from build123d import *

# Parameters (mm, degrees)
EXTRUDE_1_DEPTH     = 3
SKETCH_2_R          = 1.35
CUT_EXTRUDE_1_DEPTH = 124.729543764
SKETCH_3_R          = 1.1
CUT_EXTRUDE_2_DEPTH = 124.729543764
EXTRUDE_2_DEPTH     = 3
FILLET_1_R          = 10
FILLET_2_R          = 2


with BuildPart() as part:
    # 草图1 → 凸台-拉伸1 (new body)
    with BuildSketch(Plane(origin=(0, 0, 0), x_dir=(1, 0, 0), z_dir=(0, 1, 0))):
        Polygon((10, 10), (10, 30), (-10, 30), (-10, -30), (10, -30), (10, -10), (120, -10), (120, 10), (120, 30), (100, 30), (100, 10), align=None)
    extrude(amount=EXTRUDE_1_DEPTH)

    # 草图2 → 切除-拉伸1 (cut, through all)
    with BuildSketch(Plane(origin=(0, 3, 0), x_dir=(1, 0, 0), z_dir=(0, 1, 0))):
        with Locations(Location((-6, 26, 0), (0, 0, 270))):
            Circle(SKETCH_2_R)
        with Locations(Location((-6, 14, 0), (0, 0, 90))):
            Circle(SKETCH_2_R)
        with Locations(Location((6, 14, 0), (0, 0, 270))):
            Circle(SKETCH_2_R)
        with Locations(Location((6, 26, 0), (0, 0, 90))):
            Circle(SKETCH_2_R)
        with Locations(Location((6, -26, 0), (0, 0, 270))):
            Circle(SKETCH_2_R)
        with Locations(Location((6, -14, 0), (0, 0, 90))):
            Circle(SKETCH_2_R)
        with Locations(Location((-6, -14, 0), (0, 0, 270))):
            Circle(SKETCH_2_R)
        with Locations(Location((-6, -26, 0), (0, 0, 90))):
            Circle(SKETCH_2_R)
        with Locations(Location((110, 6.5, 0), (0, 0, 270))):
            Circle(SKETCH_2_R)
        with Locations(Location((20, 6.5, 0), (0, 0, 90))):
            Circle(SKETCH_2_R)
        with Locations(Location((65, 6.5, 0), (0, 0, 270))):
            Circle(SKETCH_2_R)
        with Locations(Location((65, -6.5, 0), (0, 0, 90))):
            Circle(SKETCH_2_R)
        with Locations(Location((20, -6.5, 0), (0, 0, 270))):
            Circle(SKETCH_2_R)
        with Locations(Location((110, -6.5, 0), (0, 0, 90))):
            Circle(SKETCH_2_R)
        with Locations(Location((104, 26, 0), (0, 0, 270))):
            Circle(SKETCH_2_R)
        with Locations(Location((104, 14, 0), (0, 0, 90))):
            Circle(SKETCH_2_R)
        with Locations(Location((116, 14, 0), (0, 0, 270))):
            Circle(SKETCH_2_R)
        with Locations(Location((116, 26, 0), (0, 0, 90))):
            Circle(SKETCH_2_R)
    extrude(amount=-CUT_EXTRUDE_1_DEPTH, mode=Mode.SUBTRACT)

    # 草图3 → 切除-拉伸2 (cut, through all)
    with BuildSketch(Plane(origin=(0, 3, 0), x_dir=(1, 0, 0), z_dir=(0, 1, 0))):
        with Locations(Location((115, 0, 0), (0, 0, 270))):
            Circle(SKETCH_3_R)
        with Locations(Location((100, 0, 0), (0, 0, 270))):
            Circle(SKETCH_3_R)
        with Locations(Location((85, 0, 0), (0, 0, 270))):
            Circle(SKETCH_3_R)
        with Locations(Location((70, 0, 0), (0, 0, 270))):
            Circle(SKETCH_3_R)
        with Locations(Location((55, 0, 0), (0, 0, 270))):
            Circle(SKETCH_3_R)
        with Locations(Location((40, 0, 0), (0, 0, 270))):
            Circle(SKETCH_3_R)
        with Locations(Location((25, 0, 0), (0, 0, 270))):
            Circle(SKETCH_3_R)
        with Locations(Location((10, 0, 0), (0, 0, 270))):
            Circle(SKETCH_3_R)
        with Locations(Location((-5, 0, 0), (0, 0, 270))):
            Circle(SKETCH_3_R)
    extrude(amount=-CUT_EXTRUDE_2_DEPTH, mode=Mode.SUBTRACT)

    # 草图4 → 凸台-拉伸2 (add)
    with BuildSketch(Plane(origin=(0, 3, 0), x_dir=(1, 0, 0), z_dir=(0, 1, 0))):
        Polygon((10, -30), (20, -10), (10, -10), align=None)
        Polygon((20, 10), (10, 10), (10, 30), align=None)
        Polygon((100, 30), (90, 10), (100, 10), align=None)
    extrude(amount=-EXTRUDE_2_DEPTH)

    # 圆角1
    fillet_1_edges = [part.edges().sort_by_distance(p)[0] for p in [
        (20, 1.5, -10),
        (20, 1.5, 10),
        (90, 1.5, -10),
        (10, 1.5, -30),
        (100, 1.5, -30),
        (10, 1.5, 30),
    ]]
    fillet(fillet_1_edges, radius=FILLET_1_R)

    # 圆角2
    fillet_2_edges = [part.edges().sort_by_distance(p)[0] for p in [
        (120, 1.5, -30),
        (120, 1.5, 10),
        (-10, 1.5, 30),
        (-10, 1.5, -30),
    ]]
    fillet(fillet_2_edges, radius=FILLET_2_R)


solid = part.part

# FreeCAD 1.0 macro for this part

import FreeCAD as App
import Part
import Sketcher


def edges_at(feature, points):
    """Names of the edges that pass closest to the given points."""
    edges = feature.Shape.Edges
    near = lambda p: min(range(len(edges)), key=lambda i: edges[i].distToShape(Part.Vertex(*p))[0])
    return sorted({f"Edge{near(p) + 1}" for p in points})


def add_polygon(sketch, points):
    """Adds a closed chain of lines whose ends are joined by coincident constraints."""
    first, n = sketch.GeometryCount, len(points)
    for a, b in zip(points, points[1:] + points[:1]):
        sketch.addGeometry(Part.LineSegment(App.Vector(*a, 0), App.Vector(*b, 0)), False)
    for i in range(n):
        sketch.addConstraint(Sketcher.Constraint("Coincident", first + i, 2, first + (i + 1) % n, 1))

doc = App.newDocument("Part")
params = doc.addObject("Spreadsheet::Sheet", "Params")
for row, (alias, value) in enumerate([
    ("sketch1_width", "20 mm"),
    ("sketch1_width2", "110 mm"),
    ("sketch1_height", "60 mm"),
    ("pad1_length", "3 mm"),
    ("sketch2_diameter", "2.7 mm"),
    ("sketch3_diameter", "2.2 mm"),
    ("sketch4_width", "10 mm"),
    ("sketch4_height", "20 mm"),
    ("pad2_length", "3 mm"),
    ("fillet_radius", "10 mm"),
    ("fillet2_radius", "2 mm"),
], start=1):
    params.set(f"A{row}", alias)
    params.set(f"B{row}", "=" + value)
    params.setAlias(f"B{row}", alias)

body = doc.addObject("PartDesign::Body", "Body")

# Sketch on XZ plane
sketch1 = body.newObject("Sketcher::SketchObject", "Sketch")
sketch1.AttachmentSupport = (doc.getObject("XZ_Plane"), [""])
sketch1.MapMode = "FlatFace"
add_polygon(sketch1, [(10, -10), (10, -30), (-10, -30), (-10, 30), (10, 30), (10, 10), (120, 10), (120, -30), (100, -30), (100, -10)])  # lines 0-9
sketch1.addConstraint(Sketcher.Constraint("Vertical", 0))
sketch1.addConstraint(Sketcher.Constraint("Horizontal", 1))
sketch1.addConstraint(Sketcher.Constraint("Vertical", 2))
sketch1.addConstraint(Sketcher.Constraint("Horizontal", 3))
sketch1.addConstraint(Sketcher.Constraint("Vertical", 4))
sketch1.addConstraint(Sketcher.Constraint("Horizontal", 5))
sketch1.addConstraint(Sketcher.Constraint("Vertical", 6))
sketch1.addConstraint(Sketcher.Constraint("Horizontal", 7))
sketch1.addConstraint(Sketcher.Constraint("Vertical", 8))
sketch1.addConstraint(Sketcher.Constraint("Horizontal", 9))
sketch1.addConstraint(Sketcher.Constraint("Symmetric", 0, 2, 2, 2, -1, 1))
sketch1.addConstraint(Sketcher.Constraint("Symmetric", 4, 2, 9, 2, -1))
sketch1.addConstraint(Sketcher.Constraint("Horizontal", 1, 2, 6, 2))
sketch1.addConstraint(Sketcher.Constraint("Equal", 3, 7))
sketch1.addConstraint(Sketcher.Constraint("Equal", 7, 0))
sketch1.addConstraint(Sketcher.Constraint("DistanceX", 1, 2, 1, 1, 20.0))
sketch1.addConstraint(Sketcher.Constraint("DistanceX", 5, 1, 5, 2, 110.0))
sketch1.addConstraint(Sketcher.Constraint("DistanceY", 2, 1, 2, 2, 60.0))
sketch1.setExpression("Constraints[25]", "Params.sketch1_width")
sketch1.setExpression("Constraints[26]", "Params.sketch1_width2")
sketch1.setExpression("Constraints[27]", "Params.sketch1_height")
pad1 = body.newObject("PartDesign::Pad", "Pad")
pad1.Profile = sketch1
pad1.setExpression("Length", "Params.pad1_length")
pad1.Reversed = True

# Sketch on XZ plane
sketch2 = body.newObject("Sketcher::SketchObject", "Sketch001")
sketch2.AttachmentSupport = (doc.getObject("XZ_Plane"), [""])
sketch2.MapMode = "FlatFace"
sketch2.AttachmentOffset = App.Placement(App.Vector(0, 0, -3), App.Rotation())
sketch2.addGeometry(Part.Circle(App.Vector(-6, -26, 0), App.Vector(0, 0, 1), 1.35), False)
sketch2.addGeometry(Part.Circle(App.Vector(-6, -14, 0), App.Vector(0, 0, 1), 1.35), False)
sketch2.addGeometry(Part.Circle(App.Vector(6, -14, 0), App.Vector(0, 0, 1), 1.35), False)
sketch2.addGeometry(Part.Circle(App.Vector(6, -26, 0), App.Vector(0, 0, 1), 1.35), False)
sketch2.addGeometry(Part.Circle(App.Vector(6, 26, 0), App.Vector(0, 0, 1), 1.35), False)
sketch2.addGeometry(Part.Circle(App.Vector(6, 14, 0), App.Vector(0, 0, 1), 1.35), False)
sketch2.addGeometry(Part.Circle(App.Vector(-6, 14, 0), App.Vector(0, 0, 1), 1.35), False)
sketch2.addGeometry(Part.Circle(App.Vector(-6, 26, 0), App.Vector(0, 0, 1), 1.35), False)
sketch2.addGeometry(Part.Circle(App.Vector(110, -6.5, 0), App.Vector(0, 0, 1), 1.35), False)
sketch2.addGeometry(Part.Circle(App.Vector(20, -6.5, 0), App.Vector(0, 0, 1), 1.35), False)
sketch2.addGeometry(Part.Circle(App.Vector(65, -6.5, 0), App.Vector(0, 0, 1), 1.35), False)
sketch2.addGeometry(Part.Circle(App.Vector(65, 6.5, 0), App.Vector(0, 0, 1), 1.35), False)
sketch2.addGeometry(Part.Circle(App.Vector(20, 6.5, 0), App.Vector(0, 0, 1), 1.35), False)
sketch2.addGeometry(Part.Circle(App.Vector(110, 6.5, 0), App.Vector(0, 0, 1), 1.35), False)
sketch2.addGeometry(Part.Circle(App.Vector(104, -26, 0), App.Vector(0, 0, 1), 1.35), False)
sketch2.addGeometry(Part.Circle(App.Vector(104, -14, 0), App.Vector(0, 0, 1), 1.35), False)
sketch2.addGeometry(Part.Circle(App.Vector(116, -14, 0), App.Vector(0, 0, 1), 1.35), False)
sketch2.addGeometry(Part.Circle(App.Vector(116, -26, 0), App.Vector(0, 0, 1), 1.35), False)
sketch2.addConstraint(Sketcher.Constraint("Equal", 0, 1))
sketch2.addConstraint(Sketcher.Constraint("Equal", 1, 2))
sketch2.addConstraint(Sketcher.Constraint("Equal", 2, 3))
sketch2.addConstraint(Sketcher.Constraint("Equal", 3, 4))
sketch2.addConstraint(Sketcher.Constraint("Equal", 4, 5))
sketch2.addConstraint(Sketcher.Constraint("Equal", 5, 6))
sketch2.addConstraint(Sketcher.Constraint("Equal", 6, 7))
sketch2.addConstraint(Sketcher.Constraint("Equal", 7, 8))
sketch2.addConstraint(Sketcher.Constraint("Equal", 8, 9))
sketch2.addConstraint(Sketcher.Constraint("Equal", 9, 10))
sketch2.addConstraint(Sketcher.Constraint("Equal", 10, 11))
sketch2.addConstraint(Sketcher.Constraint("Equal", 11, 12))
sketch2.addConstraint(Sketcher.Constraint("Equal", 12, 13))
sketch2.addConstraint(Sketcher.Constraint("Equal", 13, 14))
sketch2.addConstraint(Sketcher.Constraint("Equal", 14, 15))
sketch2.addConstraint(Sketcher.Constraint("Equal", 15, 16))
sketch2.addConstraint(Sketcher.Constraint("Equal", 16, 17))
sketch2.addConstraint(Sketcher.Constraint("Symmetric", 0, 3, 4, 3, -1, 1))
sketch2.addConstraint(Sketcher.Constraint("Symmetric", 1, 3, 5, 3, -1, 1))
sketch2.addConstraint(Sketcher.Constraint("Symmetric", 2, 3, 6, 3, -1, 1))
sketch2.addConstraint(Sketcher.Constraint("Symmetric", 3, 3, 7, 3, -1, 1))
sketch2.addConstraint(Sketcher.Constraint("Symmetric", 1, 3, 2, 3, -2))
sketch2.addConstraint(Sketcher.Constraint("Symmetric", 0, 3, 3, 3, -2))
sketch2.addConstraint(Sketcher.Constraint("Symmetric", 10, 3, 11, 3, -1))
sketch2.addConstraint(Sketcher.Constraint("Symmetric", 9, 3, 12, 3, -1))
sketch2.addConstraint(Sketcher.Constraint("Symmetric", 8, 3, 13, 3, -1))
sketch2.addConstraint(Sketcher.Constraint("Horizontal", 8, 3, 9, 3))
sketch2.addConstraint(Sketcher.Constraint("Horizontal", 9, 3, 10, 3))
sketch2.addConstraint(Sketcher.Constraint("Horizontal", 3, 3, 14, 3))
sketch2.addConstraint(Sketcher.Constraint("Horizontal", 2, 3, 15, 3))
sketch2.addConstraint(Sketcher.Constraint("Horizontal", 15, 3, 16, 3))
sketch2.addConstraint(Sketcher.Constraint("Horizontal", 14, 3, 17, 3))
sketch2.addConstraint(Sketcher.Constraint("Vertical", 0, 3, 1, 3))
sketch2.addConstraint(Sketcher.Constraint("Vertical", 14, 3, 15, 3))
sketch2.addConstraint(Sketcher.Constraint("Vertical", 16, 3, 17, 3))
sketch2.addConstraint(Sketcher.Constraint("Diameter", 0, 2.7))
sketch2.addConstraint(Sketcher.Constraint("DistanceX", 0, 3, -1, 1, 6.0))
sketch2.addConstraint(Sketcher.Constraint("DistanceY", 0, 3, -1, 1, 26.0))
sketch2.addConstraint(Sketcher.Constraint("DistanceY", 1, 3, -1, 1, 14.0))
sketch2.addConstraint(Sketcher.Constraint("DistanceX", -1, 1, 8, 3, 110.0))
sketch2.addConstraint(Sketcher.Constraint("DistanceX", -1, 1, 9, 3, 20.0))
sketch2.addConstraint(Sketcher.Constraint("DistanceX", -1, 1, 10, 3, 65.0))
sketch2.addConstraint(Sketcher.Constraint("DistanceX", -1, 1, 14, 3, 104.0))
sketch2.addConstraint(Sketcher.Constraint("DistanceX", -1, 1, 16, 3, 116.0))
sketch2.addConstraint(Sketcher.Constraint("DistanceY", 10, 3, 11, 3, 13.0))
sketch2.setExpression("Constraints[35]", "Params.sketch2_diameter")
pocket1 = body.newObject("PartDesign::Pocket", "Pocket")
pocket1.Profile = sketch2
pocket1.Type = "ThroughAll"
pocket1.Reversed = True

# Sketch on XZ plane
sketch3 = body.newObject("Sketcher::SketchObject", "Sketch002")
sketch3.AttachmentSupport = (doc.getObject("XZ_Plane"), [""])
sketch3.MapMode = "FlatFace"
sketch3.AttachmentOffset = App.Placement(App.Vector(0, 0, -3), App.Rotation())
sketch3.addGeometry(Part.Circle(App.Vector(115, 0, 0), App.Vector(0, 0, 1), 1.1), False)
sketch3.addGeometry(Part.Circle(App.Vector(100, 0, 0), App.Vector(0, 0, 1), 1.1), False)
sketch3.addGeometry(Part.Circle(App.Vector(85, 0, 0), App.Vector(0, 0, 1), 1.1), False)
sketch3.addGeometry(Part.Circle(App.Vector(70, 0, 0), App.Vector(0, 0, 1), 1.1), False)
sketch3.addGeometry(Part.Circle(App.Vector(55, 0, 0), App.Vector(0, 0, 1), 1.1), False)
sketch3.addGeometry(Part.Circle(App.Vector(40, 0, 0), App.Vector(0, 0, 1), 1.1), False)
sketch3.addGeometry(Part.Circle(App.Vector(25, 0, 0), App.Vector(0, 0, 1), 1.1), False)
sketch3.addGeometry(Part.Circle(App.Vector(10, 0, 0), App.Vector(0, 0, 1), 1.1), False)
sketch3.addGeometry(Part.Circle(App.Vector(-5, 0, 0), App.Vector(0, 0, 1), 1.1), False)
sketch3.addConstraint(Sketcher.Constraint("Equal", 0, 1))
sketch3.addConstraint(Sketcher.Constraint("Equal", 1, 2))
sketch3.addConstraint(Sketcher.Constraint("Equal", 2, 3))
sketch3.addConstraint(Sketcher.Constraint("Equal", 3, 4))
sketch3.addConstraint(Sketcher.Constraint("Equal", 4, 5))
sketch3.addConstraint(Sketcher.Constraint("Equal", 5, 6))
sketch3.addConstraint(Sketcher.Constraint("Equal", 6, 7))
sketch3.addConstraint(Sketcher.Constraint("Equal", 7, 8))
sketch3.addConstraint(Sketcher.Constraint("PointOnObject", 0, 3, -1))
sketch3.addConstraint(Sketcher.Constraint("PointOnObject", 1, 3, -1))
sketch3.addConstraint(Sketcher.Constraint("PointOnObject", 2, 3, -1))
sketch3.addConstraint(Sketcher.Constraint("PointOnObject", 3, 3, -1))
sketch3.addConstraint(Sketcher.Constraint("PointOnObject", 4, 3, -1))
sketch3.addConstraint(Sketcher.Constraint("PointOnObject", 5, 3, -1))
sketch3.addConstraint(Sketcher.Constraint("PointOnObject", 6, 3, -1))
sketch3.addConstraint(Sketcher.Constraint("PointOnObject", 7, 3, -1))
sketch3.addConstraint(Sketcher.Constraint("PointOnObject", 8, 3, -1))
sketch3.addConstraint(Sketcher.Constraint("Diameter", 0, 2.2))
sketch3.addConstraint(Sketcher.Constraint("DistanceX", -1, 1, 0, 3, 115.0))
sketch3.addConstraint(Sketcher.Constraint("DistanceX", -1, 1, 1, 3, 100.0))
sketch3.addConstraint(Sketcher.Constraint("DistanceX", -1, 1, 2, 3, 85.0))
sketch3.addConstraint(Sketcher.Constraint("DistanceX", -1, 1, 3, 3, 70.0))
sketch3.addConstraint(Sketcher.Constraint("DistanceX", -1, 1, 4, 3, 55.0))
sketch3.addConstraint(Sketcher.Constraint("DistanceX", -1, 1, 5, 3, 40.0))
sketch3.addConstraint(Sketcher.Constraint("DistanceX", -1, 1, 6, 3, 25.0))
sketch3.addConstraint(Sketcher.Constraint("DistanceX", -1, 1, 7, 3, 10.0))
sketch3.addConstraint(Sketcher.Constraint("DistanceX", 8, 3, -1, 1, 5.0))
sketch3.setExpression("Constraints[17]", "Params.sketch3_diameter")
pocket2 = body.newObject("PartDesign::Pocket", "Pocket001")
pocket2.Profile = sketch3
pocket2.Type = "ThroughAll"
pocket2.Reversed = True

# Sketch on XZ plane
sketch4 = body.newObject("Sketcher::SketchObject", "Sketch003")
sketch4.AttachmentSupport = (doc.getObject("XZ_Plane"), [""])
sketch4.MapMode = "FlatFace"
sketch4.AttachmentOffset = App.Placement(App.Vector(0, 0, -3), App.Rotation())
add_polygon(sketch4, [(10, 30), (20, 10), (10, 10)])  # lines 0-2
add_polygon(sketch4, [(10, -10), (20, -10), (10, -30)])  # lines 3-5
add_polygon(sketch4, [(100, -30), (90, -10), (100, -10)])  # lines 6-8
sketch4.addConstraint(Sketcher.Constraint("Horizontal", 1))
sketch4.addConstraint(Sketcher.Constraint("Vertical", 2))
sketch4.addConstraint(Sketcher.Constraint("Horizontal", 3))
sketch4.addConstraint(Sketcher.Constraint("Vertical", 5))
sketch4.addConstraint(Sketcher.Constraint("Horizontal", 7))
sketch4.addConstraint(Sketcher.Constraint("Vertical", 8))
sketch4.addConstraint(Sketcher.Constraint("Symmetric", 0, 2, 3, 2, -1))
sketch4.addConstraint(Sketcher.Constraint("Symmetric", 2, 2, 4, 2, -1))
sketch4.addConstraint(Sketcher.Constraint("Parallel", 0, 6))
sketch4.addConstraint(Sketcher.Constraint("Horizontal", 5, 2, 6, 2))
sketch4.addConstraint(Sketcher.Constraint("Horizontal", 4, 2, 8, 2))
sketch4.addConstraint(Sketcher.Constraint("DistanceX", 1, 2, 1, 1, 10.0))
sketch4.addConstraint(Sketcher.Constraint("DistanceY", 2, 1, 2, 2, 20.0))
sketch4.addConstraint(Sketcher.Constraint("DistanceX", -1, 1, 0, 2, 20.0))
sketch4.addConstraint(Sketcher.Constraint("DistanceY", -1, 1, 0, 2, 10.0))
sketch4.addConstraint(Sketcher.Constraint("DistanceX", -1, 1, 6, 2, 90.0))
sketch4.setExpression("Constraints[20]", "Params.sketch4_width")
sketch4.setExpression("Constraints[21]", "Params.sketch4_height")
pad2 = body.newObject("PartDesign::Pad", "Pad001")
pad2.Profile = sketch4
pad2.setExpression("Length", "Params.pad2_length")
doc.recompute()

fillet = body.newObject("PartDesign::Fillet", "Fillet")
fillet.Base = (pad2, edges_at(pad2, [
    (20, 1.5, -10),
    (20, 1.5, 10),
    (90, 1.5, -10),
    (10, 1.5, -30),
    (100, 1.5, -30),
    (10, 1.5, 30),
]))
fillet.setExpression("Radius", "Params.fillet_radius")
doc.recompute()

fillet2 = body.newObject("PartDesign::Fillet", "Fillet001")
fillet2.Base = (fillet, edges_at(fillet, [
    (120, 1.5, -30),
    (120, 1.5, 10),
    (-10, 1.5, 30),
    (-10, 1.5, -30),
]))
fillet2.setExpression("Radius", "Params.fillet2_radius")

doc.recompute()
